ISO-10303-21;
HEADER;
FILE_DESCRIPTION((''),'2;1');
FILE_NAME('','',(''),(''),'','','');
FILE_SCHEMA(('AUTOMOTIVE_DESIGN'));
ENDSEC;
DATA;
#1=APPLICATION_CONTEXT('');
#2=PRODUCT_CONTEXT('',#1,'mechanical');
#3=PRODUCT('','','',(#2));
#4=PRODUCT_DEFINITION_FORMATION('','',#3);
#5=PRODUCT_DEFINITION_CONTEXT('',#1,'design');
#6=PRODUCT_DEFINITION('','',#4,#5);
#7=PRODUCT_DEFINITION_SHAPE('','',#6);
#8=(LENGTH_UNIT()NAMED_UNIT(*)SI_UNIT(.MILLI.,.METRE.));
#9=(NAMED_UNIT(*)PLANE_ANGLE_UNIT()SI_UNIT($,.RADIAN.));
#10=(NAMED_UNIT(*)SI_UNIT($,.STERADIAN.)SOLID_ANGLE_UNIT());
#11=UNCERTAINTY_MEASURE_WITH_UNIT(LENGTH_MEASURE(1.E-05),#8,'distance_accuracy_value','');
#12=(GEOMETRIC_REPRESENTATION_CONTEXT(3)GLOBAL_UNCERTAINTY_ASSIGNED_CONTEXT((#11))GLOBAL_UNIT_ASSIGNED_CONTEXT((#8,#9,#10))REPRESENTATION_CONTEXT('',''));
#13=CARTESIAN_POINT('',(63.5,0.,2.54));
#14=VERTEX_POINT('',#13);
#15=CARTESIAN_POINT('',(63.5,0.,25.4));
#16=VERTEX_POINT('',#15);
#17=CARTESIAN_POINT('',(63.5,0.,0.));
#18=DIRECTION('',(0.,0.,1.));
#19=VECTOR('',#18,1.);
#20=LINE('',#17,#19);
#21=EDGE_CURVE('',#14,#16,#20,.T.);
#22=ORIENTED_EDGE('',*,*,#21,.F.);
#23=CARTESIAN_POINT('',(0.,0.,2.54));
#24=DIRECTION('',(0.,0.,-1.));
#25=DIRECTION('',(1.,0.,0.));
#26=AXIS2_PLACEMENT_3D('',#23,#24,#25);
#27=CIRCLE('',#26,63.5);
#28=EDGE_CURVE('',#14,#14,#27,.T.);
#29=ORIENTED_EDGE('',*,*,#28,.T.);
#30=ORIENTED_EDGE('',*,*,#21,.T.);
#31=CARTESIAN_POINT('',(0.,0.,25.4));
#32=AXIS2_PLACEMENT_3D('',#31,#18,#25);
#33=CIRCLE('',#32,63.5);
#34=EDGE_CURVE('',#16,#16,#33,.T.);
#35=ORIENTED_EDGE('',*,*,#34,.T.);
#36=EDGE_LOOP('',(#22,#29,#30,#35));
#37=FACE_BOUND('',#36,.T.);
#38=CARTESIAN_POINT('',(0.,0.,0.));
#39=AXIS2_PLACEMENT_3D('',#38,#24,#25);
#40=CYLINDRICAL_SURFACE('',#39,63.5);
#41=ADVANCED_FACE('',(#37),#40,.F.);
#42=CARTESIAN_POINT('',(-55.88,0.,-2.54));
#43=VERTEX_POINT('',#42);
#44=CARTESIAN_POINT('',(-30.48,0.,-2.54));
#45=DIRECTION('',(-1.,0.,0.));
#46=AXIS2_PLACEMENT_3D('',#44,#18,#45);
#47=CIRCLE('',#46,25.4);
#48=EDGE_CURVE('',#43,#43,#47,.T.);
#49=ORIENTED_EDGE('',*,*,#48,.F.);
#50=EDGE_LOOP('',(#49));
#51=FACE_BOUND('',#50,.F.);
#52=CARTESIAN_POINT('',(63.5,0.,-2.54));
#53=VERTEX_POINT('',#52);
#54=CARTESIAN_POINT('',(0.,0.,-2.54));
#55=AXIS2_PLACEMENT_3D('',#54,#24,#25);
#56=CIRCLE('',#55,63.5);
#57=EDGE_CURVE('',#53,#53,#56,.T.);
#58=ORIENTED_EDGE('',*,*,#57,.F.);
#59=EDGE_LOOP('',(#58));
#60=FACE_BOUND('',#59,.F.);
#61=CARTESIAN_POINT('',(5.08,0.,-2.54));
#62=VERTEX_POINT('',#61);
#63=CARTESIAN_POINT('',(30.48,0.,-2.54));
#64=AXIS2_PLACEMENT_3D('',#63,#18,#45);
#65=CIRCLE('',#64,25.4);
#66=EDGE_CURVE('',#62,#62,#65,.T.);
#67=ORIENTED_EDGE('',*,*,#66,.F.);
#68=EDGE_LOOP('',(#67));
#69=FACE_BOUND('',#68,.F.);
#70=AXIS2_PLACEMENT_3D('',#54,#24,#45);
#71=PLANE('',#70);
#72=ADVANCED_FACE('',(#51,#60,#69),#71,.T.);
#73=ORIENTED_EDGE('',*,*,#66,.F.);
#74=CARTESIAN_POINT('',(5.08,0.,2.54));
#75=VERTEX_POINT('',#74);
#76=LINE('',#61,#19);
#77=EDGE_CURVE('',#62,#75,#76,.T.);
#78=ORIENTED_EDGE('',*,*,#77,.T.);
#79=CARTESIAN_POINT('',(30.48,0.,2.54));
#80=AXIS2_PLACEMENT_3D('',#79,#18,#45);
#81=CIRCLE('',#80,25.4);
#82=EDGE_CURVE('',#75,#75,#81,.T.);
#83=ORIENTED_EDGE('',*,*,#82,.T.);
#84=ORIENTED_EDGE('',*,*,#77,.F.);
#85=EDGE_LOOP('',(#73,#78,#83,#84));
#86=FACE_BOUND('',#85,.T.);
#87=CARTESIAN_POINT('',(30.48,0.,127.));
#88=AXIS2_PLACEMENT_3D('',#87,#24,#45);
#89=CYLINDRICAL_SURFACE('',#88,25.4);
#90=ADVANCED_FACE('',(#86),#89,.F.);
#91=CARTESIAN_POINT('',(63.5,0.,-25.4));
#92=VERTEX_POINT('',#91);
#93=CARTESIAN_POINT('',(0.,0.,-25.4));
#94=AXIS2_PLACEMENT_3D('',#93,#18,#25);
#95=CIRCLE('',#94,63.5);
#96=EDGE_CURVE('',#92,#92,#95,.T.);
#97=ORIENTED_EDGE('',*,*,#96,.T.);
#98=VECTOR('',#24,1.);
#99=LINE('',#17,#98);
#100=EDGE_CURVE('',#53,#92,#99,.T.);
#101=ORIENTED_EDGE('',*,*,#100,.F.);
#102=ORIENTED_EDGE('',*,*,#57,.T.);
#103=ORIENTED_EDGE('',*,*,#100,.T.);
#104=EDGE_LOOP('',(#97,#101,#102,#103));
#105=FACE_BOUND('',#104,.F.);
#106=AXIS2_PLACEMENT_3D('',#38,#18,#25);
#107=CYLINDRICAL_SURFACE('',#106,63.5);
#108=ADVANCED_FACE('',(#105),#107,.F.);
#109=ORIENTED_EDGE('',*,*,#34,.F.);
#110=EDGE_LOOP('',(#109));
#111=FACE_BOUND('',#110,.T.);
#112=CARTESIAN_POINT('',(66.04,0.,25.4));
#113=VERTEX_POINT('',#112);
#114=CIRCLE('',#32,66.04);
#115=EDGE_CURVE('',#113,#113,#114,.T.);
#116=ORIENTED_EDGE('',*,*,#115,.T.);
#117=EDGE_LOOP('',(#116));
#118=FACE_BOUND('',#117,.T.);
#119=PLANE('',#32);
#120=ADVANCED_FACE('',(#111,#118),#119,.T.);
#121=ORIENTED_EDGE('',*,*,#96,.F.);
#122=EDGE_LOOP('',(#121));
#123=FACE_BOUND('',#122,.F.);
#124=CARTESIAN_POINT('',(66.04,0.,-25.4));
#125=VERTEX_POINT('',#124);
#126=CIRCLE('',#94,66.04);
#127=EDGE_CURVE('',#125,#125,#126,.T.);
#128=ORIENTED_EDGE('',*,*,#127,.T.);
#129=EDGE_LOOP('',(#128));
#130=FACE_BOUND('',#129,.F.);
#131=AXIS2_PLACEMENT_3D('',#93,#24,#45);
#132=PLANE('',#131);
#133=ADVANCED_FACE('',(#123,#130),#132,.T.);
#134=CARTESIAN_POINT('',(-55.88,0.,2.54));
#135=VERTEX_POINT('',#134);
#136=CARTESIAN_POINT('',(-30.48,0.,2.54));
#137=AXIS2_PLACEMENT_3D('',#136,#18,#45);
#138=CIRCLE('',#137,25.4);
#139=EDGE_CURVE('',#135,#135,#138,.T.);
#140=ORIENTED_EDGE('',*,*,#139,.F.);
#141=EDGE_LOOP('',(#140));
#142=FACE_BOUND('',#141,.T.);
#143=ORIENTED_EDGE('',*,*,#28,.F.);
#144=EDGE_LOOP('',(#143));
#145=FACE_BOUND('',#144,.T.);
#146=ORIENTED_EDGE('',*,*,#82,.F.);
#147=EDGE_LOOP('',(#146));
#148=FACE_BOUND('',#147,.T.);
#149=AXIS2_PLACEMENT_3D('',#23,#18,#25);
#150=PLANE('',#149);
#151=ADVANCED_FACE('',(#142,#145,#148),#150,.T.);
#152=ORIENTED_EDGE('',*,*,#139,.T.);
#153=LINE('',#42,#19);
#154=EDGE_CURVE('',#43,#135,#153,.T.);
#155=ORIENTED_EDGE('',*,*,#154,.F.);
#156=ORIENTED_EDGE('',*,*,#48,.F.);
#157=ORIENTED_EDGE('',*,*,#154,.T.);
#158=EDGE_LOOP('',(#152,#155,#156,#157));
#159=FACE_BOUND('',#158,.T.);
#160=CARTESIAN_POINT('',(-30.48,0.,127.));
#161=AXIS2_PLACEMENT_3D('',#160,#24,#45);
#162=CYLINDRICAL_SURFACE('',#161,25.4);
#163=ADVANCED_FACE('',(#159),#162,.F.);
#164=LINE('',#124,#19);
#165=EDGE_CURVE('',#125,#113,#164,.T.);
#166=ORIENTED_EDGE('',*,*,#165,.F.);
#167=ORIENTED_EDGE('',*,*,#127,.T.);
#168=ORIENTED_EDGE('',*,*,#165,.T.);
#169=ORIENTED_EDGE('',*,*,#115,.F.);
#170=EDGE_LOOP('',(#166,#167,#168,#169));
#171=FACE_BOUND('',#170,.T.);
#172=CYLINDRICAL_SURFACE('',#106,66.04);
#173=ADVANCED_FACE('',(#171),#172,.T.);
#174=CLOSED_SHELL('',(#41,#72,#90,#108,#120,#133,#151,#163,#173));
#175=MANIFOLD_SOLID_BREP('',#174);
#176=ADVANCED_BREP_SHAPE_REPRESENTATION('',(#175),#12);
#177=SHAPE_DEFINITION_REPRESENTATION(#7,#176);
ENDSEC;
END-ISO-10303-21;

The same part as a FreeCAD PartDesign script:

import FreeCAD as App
import Part
import Sketcher
from FreeCAD import Vector
Q = App.Units.Quantity


def faces_at(feature, points):
    """Names of the faces that lie closest to the given points."""
    faces = feature.Shape.Faces
    near = lambda p: min(range(len(faces)), key=lambda i: faces[i].distToShape(Part.Vertex(*p))[0])
    return sorted({f"Face{near(p) + 1}" for p in points})

doc = App.newDocument("Part")
body = doc.addObject("PartDesign::Body", "Body")

# Sketch on XY plane
sketch1 = body.newObject("Sketcher::SketchObject", "Sketch")
sketch1.AttachmentSupport = (doc.getObject("XY_Plane"), [""])
sketch1.MapMode = "FlatFace"
sketch1.addGeometry(Part.Circle(Vector(0, 0, 0), Vector(0, 0, 1), 66), False)
sketch1.addConstraint([
    Sketcher.Constraint("Coincident", 0, 3, -1, 1),
    Sketcher.Constraint("Diameter", 0, Q("5.2 in")),
])
pad1 = body.newObject("PartDesign::Pad", "Pad")
pad1.Profile = sketch1
pad1.Length = Q("1 in")
doc.recompute()

thickness = body.newObject("PartDesign::Thickness", "Thickness")
thickness.Base = (pad1, faces_at(pad1, [(0, 0, 25.4)]))
thickness.Value = Q("0.1 in")
thickness.Reversed = True
thickness.Join = "Arc"

# Sketch on XY plane
sketch2 = body.newObject("Sketcher::SketchObject", "Sketch001")
sketch2.AttachmentSupport = (doc.getObject("XY_Plane"), [""])
sketch2.MapMode = "FlatFace"
sketch2.addGeometry([
    Part.Circle(Vector(30, 0, 0), Vector(0, 0, 1), 25),
    Part.Circle(Vector(-30, 0, 0), Vector(0, 0, 1), 25),
], False)
sketch2.addConstraint([
    Sketcher.Constraint("Equal", 0, 1),
    Sketcher.Constraint("Symmetric", 0, 3, 1, 3, -1, 1),
    Sketcher.Constraint("PointOnObject", 0, 3, -1),
    Sketcher.Constraint("Diameter", 0, Q("2 in")),
    Sketcher.Constraint("DistanceX", -1, 1, 0, 3, Q("1.2 in")),
])
doc.recompute()
hole = body.newObject("PartDesign::Hole", "Hole")
hole.Profile = sketch2
hole.ThreadType = "None"
hole.Diameter = Q("2 in")
hole.DepthType = "Dimension"
hole.Depth = Q("5 in")
hole.DrillPoint = "Flat"
hole.Reversed = True
body2 = doc.addObject("PartDesign::Body", "Body001")
doc.recompute()

body2.BaseFeature = body
doc.recompute()

mirroring = doc.addObject("Part::Mirroring", "Mirroring")
mirroring.Source = body
mirroring.Base = Vector(0, 0, 0)
mirroring.Normal = Vector(0, 0, -1)
body3 = doc.addObject("PartDesign::Body", "Body002")
body3.BaseFeature = mirroring
boolean = body2.newObject("PartDesign::Boolean", "Boolean")
boolean.Type = "Fuse"
boolean.addObjects([body3])
doc.recompute()
mirroring.Visibility = False

doc.recompute()
